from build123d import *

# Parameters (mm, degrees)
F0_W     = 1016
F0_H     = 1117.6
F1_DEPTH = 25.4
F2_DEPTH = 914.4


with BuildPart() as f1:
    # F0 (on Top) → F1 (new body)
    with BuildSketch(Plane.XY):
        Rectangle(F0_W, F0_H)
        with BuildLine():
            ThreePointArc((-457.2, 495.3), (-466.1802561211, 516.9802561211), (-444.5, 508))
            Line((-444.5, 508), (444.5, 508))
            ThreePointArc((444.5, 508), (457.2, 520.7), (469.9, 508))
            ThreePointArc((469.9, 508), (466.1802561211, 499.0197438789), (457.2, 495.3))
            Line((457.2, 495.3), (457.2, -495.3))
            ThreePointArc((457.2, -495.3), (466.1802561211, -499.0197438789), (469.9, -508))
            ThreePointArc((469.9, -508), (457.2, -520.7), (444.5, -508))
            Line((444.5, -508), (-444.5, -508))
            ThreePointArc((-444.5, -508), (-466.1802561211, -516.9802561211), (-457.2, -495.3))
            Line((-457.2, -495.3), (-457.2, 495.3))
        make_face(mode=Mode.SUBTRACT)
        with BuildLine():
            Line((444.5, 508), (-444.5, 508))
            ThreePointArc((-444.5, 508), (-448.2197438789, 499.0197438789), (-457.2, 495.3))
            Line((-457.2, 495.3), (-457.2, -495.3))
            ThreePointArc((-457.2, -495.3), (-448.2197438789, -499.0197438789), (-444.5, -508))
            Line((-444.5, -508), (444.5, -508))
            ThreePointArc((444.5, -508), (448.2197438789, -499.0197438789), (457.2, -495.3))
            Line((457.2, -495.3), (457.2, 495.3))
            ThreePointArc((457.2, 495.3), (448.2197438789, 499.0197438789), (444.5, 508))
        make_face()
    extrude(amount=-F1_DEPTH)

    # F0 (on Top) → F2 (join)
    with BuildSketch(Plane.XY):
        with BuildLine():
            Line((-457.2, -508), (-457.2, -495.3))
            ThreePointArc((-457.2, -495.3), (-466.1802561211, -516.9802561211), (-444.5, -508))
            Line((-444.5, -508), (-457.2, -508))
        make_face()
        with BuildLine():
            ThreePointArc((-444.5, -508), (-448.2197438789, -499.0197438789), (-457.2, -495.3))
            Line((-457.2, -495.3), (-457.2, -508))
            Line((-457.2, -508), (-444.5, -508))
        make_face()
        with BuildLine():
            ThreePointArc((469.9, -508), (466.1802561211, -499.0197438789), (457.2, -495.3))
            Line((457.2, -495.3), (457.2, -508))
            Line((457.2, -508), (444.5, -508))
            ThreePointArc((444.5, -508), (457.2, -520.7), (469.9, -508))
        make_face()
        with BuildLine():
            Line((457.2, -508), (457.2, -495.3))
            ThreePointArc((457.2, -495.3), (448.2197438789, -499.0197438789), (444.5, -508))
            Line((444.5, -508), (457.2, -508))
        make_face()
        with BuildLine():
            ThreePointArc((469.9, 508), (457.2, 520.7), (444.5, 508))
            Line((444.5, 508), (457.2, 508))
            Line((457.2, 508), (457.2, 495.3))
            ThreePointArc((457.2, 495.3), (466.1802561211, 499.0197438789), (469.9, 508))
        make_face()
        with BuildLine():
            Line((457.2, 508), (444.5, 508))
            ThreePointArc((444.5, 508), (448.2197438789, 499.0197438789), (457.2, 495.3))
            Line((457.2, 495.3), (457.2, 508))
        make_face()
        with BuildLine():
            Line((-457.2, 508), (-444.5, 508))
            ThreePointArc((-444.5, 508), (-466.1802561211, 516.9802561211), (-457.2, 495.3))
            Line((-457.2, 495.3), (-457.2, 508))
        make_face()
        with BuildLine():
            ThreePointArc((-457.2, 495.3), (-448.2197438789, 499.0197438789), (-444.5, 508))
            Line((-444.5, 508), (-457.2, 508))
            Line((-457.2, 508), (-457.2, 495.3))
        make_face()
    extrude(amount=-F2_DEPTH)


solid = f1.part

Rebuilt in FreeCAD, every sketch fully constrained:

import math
import FreeCAD as App
import Part
import Sketcher

V = App.Vector
Q = App.Units.Quantity

doc = App.newDocument("Part")
body = doc.addObject("PartDesign::Body", "Body")

# Sketch on XY plane
sketch1 = body.newObject("Sketcher::SketchObject", "Sketch")
sketch1.AttachmentSupport = (doc.getObject("XY_Plane"), [""])
sketch1.MapMode = "FlatFace"
sketch1.addGeometry([
    Part.LineSegment(V(-508, 559, 0), V(-508, -559, 0)),  # 0
    Part.LineSegment(V(-508, -559, 0), V(508, -559, 0)),  # 1
    Part.LineSegment(V(508, -559, 0), V(508, 559, 0)),  # 2
    Part.LineSegment(V(508, 559, 0), V(-508, 559, 0)),  # 3
    Part.ArcOfCircle(Part.Circle(V(-457, -508, 0), V(0, 0, 1), 13), math.radians(90), math.radians(360)),  # 4
    Part.ArcOfCircle(Part.Circle(V(-457, -508, 0), V(0, 0, 1), 13), math.radians(0), math.radians(90)),  # 5
    Part.ArcOfCircle(Part.Circle(V(457, -508, 0), V(0, 0, 1), 13), math.radians(180), math.radians(360)),  # 6
    Part.ArcOfCircle(Part.Circle(V(457, -508, 0), V(0, 0, 1), 13), math.radians(90), math.radians(180)),  # 7
    Part.ArcOfCircle(Part.Circle(V(457, -508, 0), V(0, 0, 1), 13), math.radians(0), math.radians(90)),  # 8
    Part.ArcOfCircle(Part.Circle(V(457, 508, 0), V(0, 0, 1), 13), math.radians(-90), math.radians(0)),  # 9
    Part.ArcOfCircle(Part.Circle(V(457, 508, 0), V(0, 0, 1), 13), math.radians(180), math.radians(270)),  # 10
    Part.ArcOfCircle(Part.Circle(V(457, 508, 0), V(0, 0, 1), 13), math.radians(0), math.radians(180)),  # 11
    Part.ArcOfCircle(Part.Circle(V(-457, 508, 0), V(0, 0, 1), 13), math.radians(0), math.radians(270)),  # 12
    Part.ArcOfCircle(Part.Circle(V(-457, 508, 0), V(0, 0, 1), 13), math.radians(-90), math.radians(0)),  # 13
], False)
sketch1.addConstraint([
    Sketcher.Constraint("Coincident", 0, 2, 1, 1),
    Sketcher.Constraint("Coincident", 1, 2, 2, 1),
    Sketcher.Constraint("Coincident", 2, 2, 3, 1),
    Sketcher.Constraint("Coincident", 3, 2, 0, 1),
    Sketcher.Constraint("Tangent", 4, 1, 5, 2),
    Sketcher.Constraint("Coincident", 5, 1, 4, 2),
    Sketcher.Constraint("Tangent", 6, 1, 7, 2),
    Sketcher.Constraint("Tangent", 7, 1, 8, 2),
    Sketcher.Constraint("Tangent", 8, 1, 6, 2),
    Sketcher.Constraint("Tangent", 9, 1, 10, 2),
    Sketcher.Constraint("Tangent", 10, 1, 11, 2),
    Sketcher.Constraint("Tangent", 11, 1, 9, 2),
    Sketcher.Constraint("Tangent", 12, 1, 13, 2),
    Sketcher.Constraint("Coincident", 13, 1, 12, 2),
    Sketcher.Constraint("Vertical", 0),
    Sketcher.Constraint("Horizontal", 1),
    Sketcher.Constraint("Vertical", 2),
    Sketcher.Constraint("Horizontal", 3),
    Sketcher.Constraint("Equal", 5, 6),
    Sketcher.Constraint("Equal", 8, 9),
    Sketcher.Constraint("Equal", 11, 12),
    Sketcher.Constraint("Symmetric", 4, 3, 9, 3, -1, 1),
    Sketcher.Constraint("Symmetric", 6, 3, 12, 3, -1, 1),
    Sketcher.Constraint("Symmetric", 0, 2, 2, 2, -1, 1),
    Sketcher.Constraint("Symmetric", 4, 3, 6, 3, -2),
    Sketcher.Constraint("Horizontal", 8, 3, 5, 1),
    Sketcher.Constraint("Horizontal", 5, 1, 6, 1),
    Sketcher.Constraint("Horizontal", 6, 1, 8, 1),
    Sketcher.Constraint("Horizontal", 13, 3, 10, 1),
    Sketcher.Constraint("Horizontal", 10, 1, 11, 1),
    Sketcher.Constraint("Horizontal", 11, 1, 12, 1),
    Sketcher.Constraint("Vertical", 13, 3, 4, 1),
    Sketcher.Constraint("Vertical", 11, 3, 7, 1),
    Sketcher.Constraint("Vertical", 7, 1, 9, 1),
    Sketcher.Constraint("Vertical", 4, 1, 13, 1),
    Sketcher.Constraint("Radius", 4, Q("0.5 in")),
    Sketcher.Constraint("DistanceX", 1, 1, 1, 2, Q("40 in")),
    Sketcher.Constraint("DistanceY", 0, 2, 0, 1, Q("44 in")),
    Sketcher.Constraint("DistanceX", 4, 3, -1, 1, Q("18 in")),
    Sketcher.Constraint("DistanceY", 4, 3, -1, 1, Q("20 in")),
])
pad1 = body.newObject("PartDesign::Pad", "Pad")
pad1.Profile = sketch1
pad1.Length = Q("1 in")
pad1.Reversed = True

# Sketch on XY plane
sketch2 = body.newObject("Sketcher::SketchObject", "Sketch001")
sketch2.AttachmentSupport = (doc.getObject("XY_Plane"), [""])
sketch2.MapMode = "FlatFace"
sketch2.addGeometry([
    Part.ArcOfCircle(Part.Circle(V(-457, -508, 0), V(0, 0, 1), 13), math.radians(90), math.radians(360)),  # 0
    Part.ArcOfCircle(Part.Circle(V(-457, -508, 0), V(0, 0, 1), 13), math.radians(0), math.radians(90)),  # 1
    Part.ArcOfCircle(Part.Circle(V(457, -508, 0), V(0, 0, 1), 13), math.radians(0), math.radians(90)),  # 2
    Part.ArcOfCircle(Part.Circle(V(457, -508, 0), V(0, 0, 1), 13), math.radians(90), math.radians(180)),  # 3
    Part.ArcOfCircle(Part.Circle(V(457, -508, 0), V(0, 0, 1), 13), math.radians(180), math.radians(360)),  # 4
    Part.ArcOfCircle(Part.Circle(V(457, 508, 0), V(0, 0, 1), 13), math.radians(0), math.radians(180)),  # 5
    Part.ArcOfCircle(Part.Circle(V(457, 508, 0), V(0, 0, 1), 13), math.radians(180), math.radians(270)),  # 6
    Part.ArcOfCircle(Part.Circle(V(457, 508, 0), V(0, 0, 1), 13), math.radians(-90), math.radians(0)),  # 7
    Part.ArcOfCircle(Part.Circle(V(-457, 508, 0), V(0, 0, 1), 13), math.radians(0), math.radians(270)),  # 8
    Part.ArcOfCircle(Part.Circle(V(-457, 508, 0), V(0, 0, 1), 13), math.radians(-90), math.radians(0)),  # 9
], False)
sketch2.addConstraint([
    Sketcher.Constraint("Tangent", 0, 1, 1, 2),
    Sketcher.Constraint("Coincident", 1, 1, 0, 2),
    Sketcher.Constraint("Tangent", 2, 2, 3, 1),
    Sketcher.Constraint("Tangent", 3, 2, 4, 1),
    Sketcher.Constraint("Tangent", 4, 2, 2, 1),
    Sketcher.Constraint("Tangent", 5, 2, 6, 1),
    Sketcher.Constraint("Tangent", 6, 2, 7, 1),
    Sketcher.Constraint("Tangent", 7, 2, 5, 1),
    Sketcher.Constraint("Tangent", 8, 1, 9, 2),
    Sketcher.Constraint("Coincident", 9, 1, 8, 2),
    Sketcher.Constraint("Equal", 1, 2),
    Sketcher.Constraint("Equal", 4, 5),
    Sketcher.Constraint("Equal", 7, 8),
    Sketcher.Constraint("Symmetric", 0, 3, 5, 3, -1, 1),
    Sketcher.Constraint("Symmetric", 2, 3, 8, 3, -1, 1),
    Sketcher.Constraint("Symmetric", 0, 3, 2, 3, -2),
    Sketcher.Constraint("Horizontal", 4, 3, 1, 1),
    Sketcher.Constraint("Horizontal", 1, 1, 3, 2),
    Sketcher.Constraint("Horizontal", 3, 2, 4, 2),
    Sketcher.Constraint("Horizontal", 9, 3, 5, 2),
    Sketcher.Constraint("Horizontal", 5, 2, 7, 2),
    Sketcher.Constraint("Horizontal", 7, 2, 8, 1),
    Sketcher.Constraint("Vertical", 9, 3, 0, 1),
    Sketcher.Constraint("Vertical", 7, 3, 2, 2),
    Sketcher.Constraint("Vertical", 2, 2, 6, 2),
    Sketcher.Constraint("Vertical", 0, 1, 9, 1),
    Sketcher.Constraint("Radius", 0, Q("0.5 in")),
    Sketcher.Constraint("DistanceX", 0, 3, -1, 1, Q("18 in")),
    Sketcher.Constraint("DistanceY", 0, 3, -1, 1, Q("20 in")),
])
pad2 = body.newObject("PartDesign::Pad", "Pad001")
pad2.Profile = sketch2
pad2.Length = Q("36 in")
pad2.Reversed = True

doc.recompute()
